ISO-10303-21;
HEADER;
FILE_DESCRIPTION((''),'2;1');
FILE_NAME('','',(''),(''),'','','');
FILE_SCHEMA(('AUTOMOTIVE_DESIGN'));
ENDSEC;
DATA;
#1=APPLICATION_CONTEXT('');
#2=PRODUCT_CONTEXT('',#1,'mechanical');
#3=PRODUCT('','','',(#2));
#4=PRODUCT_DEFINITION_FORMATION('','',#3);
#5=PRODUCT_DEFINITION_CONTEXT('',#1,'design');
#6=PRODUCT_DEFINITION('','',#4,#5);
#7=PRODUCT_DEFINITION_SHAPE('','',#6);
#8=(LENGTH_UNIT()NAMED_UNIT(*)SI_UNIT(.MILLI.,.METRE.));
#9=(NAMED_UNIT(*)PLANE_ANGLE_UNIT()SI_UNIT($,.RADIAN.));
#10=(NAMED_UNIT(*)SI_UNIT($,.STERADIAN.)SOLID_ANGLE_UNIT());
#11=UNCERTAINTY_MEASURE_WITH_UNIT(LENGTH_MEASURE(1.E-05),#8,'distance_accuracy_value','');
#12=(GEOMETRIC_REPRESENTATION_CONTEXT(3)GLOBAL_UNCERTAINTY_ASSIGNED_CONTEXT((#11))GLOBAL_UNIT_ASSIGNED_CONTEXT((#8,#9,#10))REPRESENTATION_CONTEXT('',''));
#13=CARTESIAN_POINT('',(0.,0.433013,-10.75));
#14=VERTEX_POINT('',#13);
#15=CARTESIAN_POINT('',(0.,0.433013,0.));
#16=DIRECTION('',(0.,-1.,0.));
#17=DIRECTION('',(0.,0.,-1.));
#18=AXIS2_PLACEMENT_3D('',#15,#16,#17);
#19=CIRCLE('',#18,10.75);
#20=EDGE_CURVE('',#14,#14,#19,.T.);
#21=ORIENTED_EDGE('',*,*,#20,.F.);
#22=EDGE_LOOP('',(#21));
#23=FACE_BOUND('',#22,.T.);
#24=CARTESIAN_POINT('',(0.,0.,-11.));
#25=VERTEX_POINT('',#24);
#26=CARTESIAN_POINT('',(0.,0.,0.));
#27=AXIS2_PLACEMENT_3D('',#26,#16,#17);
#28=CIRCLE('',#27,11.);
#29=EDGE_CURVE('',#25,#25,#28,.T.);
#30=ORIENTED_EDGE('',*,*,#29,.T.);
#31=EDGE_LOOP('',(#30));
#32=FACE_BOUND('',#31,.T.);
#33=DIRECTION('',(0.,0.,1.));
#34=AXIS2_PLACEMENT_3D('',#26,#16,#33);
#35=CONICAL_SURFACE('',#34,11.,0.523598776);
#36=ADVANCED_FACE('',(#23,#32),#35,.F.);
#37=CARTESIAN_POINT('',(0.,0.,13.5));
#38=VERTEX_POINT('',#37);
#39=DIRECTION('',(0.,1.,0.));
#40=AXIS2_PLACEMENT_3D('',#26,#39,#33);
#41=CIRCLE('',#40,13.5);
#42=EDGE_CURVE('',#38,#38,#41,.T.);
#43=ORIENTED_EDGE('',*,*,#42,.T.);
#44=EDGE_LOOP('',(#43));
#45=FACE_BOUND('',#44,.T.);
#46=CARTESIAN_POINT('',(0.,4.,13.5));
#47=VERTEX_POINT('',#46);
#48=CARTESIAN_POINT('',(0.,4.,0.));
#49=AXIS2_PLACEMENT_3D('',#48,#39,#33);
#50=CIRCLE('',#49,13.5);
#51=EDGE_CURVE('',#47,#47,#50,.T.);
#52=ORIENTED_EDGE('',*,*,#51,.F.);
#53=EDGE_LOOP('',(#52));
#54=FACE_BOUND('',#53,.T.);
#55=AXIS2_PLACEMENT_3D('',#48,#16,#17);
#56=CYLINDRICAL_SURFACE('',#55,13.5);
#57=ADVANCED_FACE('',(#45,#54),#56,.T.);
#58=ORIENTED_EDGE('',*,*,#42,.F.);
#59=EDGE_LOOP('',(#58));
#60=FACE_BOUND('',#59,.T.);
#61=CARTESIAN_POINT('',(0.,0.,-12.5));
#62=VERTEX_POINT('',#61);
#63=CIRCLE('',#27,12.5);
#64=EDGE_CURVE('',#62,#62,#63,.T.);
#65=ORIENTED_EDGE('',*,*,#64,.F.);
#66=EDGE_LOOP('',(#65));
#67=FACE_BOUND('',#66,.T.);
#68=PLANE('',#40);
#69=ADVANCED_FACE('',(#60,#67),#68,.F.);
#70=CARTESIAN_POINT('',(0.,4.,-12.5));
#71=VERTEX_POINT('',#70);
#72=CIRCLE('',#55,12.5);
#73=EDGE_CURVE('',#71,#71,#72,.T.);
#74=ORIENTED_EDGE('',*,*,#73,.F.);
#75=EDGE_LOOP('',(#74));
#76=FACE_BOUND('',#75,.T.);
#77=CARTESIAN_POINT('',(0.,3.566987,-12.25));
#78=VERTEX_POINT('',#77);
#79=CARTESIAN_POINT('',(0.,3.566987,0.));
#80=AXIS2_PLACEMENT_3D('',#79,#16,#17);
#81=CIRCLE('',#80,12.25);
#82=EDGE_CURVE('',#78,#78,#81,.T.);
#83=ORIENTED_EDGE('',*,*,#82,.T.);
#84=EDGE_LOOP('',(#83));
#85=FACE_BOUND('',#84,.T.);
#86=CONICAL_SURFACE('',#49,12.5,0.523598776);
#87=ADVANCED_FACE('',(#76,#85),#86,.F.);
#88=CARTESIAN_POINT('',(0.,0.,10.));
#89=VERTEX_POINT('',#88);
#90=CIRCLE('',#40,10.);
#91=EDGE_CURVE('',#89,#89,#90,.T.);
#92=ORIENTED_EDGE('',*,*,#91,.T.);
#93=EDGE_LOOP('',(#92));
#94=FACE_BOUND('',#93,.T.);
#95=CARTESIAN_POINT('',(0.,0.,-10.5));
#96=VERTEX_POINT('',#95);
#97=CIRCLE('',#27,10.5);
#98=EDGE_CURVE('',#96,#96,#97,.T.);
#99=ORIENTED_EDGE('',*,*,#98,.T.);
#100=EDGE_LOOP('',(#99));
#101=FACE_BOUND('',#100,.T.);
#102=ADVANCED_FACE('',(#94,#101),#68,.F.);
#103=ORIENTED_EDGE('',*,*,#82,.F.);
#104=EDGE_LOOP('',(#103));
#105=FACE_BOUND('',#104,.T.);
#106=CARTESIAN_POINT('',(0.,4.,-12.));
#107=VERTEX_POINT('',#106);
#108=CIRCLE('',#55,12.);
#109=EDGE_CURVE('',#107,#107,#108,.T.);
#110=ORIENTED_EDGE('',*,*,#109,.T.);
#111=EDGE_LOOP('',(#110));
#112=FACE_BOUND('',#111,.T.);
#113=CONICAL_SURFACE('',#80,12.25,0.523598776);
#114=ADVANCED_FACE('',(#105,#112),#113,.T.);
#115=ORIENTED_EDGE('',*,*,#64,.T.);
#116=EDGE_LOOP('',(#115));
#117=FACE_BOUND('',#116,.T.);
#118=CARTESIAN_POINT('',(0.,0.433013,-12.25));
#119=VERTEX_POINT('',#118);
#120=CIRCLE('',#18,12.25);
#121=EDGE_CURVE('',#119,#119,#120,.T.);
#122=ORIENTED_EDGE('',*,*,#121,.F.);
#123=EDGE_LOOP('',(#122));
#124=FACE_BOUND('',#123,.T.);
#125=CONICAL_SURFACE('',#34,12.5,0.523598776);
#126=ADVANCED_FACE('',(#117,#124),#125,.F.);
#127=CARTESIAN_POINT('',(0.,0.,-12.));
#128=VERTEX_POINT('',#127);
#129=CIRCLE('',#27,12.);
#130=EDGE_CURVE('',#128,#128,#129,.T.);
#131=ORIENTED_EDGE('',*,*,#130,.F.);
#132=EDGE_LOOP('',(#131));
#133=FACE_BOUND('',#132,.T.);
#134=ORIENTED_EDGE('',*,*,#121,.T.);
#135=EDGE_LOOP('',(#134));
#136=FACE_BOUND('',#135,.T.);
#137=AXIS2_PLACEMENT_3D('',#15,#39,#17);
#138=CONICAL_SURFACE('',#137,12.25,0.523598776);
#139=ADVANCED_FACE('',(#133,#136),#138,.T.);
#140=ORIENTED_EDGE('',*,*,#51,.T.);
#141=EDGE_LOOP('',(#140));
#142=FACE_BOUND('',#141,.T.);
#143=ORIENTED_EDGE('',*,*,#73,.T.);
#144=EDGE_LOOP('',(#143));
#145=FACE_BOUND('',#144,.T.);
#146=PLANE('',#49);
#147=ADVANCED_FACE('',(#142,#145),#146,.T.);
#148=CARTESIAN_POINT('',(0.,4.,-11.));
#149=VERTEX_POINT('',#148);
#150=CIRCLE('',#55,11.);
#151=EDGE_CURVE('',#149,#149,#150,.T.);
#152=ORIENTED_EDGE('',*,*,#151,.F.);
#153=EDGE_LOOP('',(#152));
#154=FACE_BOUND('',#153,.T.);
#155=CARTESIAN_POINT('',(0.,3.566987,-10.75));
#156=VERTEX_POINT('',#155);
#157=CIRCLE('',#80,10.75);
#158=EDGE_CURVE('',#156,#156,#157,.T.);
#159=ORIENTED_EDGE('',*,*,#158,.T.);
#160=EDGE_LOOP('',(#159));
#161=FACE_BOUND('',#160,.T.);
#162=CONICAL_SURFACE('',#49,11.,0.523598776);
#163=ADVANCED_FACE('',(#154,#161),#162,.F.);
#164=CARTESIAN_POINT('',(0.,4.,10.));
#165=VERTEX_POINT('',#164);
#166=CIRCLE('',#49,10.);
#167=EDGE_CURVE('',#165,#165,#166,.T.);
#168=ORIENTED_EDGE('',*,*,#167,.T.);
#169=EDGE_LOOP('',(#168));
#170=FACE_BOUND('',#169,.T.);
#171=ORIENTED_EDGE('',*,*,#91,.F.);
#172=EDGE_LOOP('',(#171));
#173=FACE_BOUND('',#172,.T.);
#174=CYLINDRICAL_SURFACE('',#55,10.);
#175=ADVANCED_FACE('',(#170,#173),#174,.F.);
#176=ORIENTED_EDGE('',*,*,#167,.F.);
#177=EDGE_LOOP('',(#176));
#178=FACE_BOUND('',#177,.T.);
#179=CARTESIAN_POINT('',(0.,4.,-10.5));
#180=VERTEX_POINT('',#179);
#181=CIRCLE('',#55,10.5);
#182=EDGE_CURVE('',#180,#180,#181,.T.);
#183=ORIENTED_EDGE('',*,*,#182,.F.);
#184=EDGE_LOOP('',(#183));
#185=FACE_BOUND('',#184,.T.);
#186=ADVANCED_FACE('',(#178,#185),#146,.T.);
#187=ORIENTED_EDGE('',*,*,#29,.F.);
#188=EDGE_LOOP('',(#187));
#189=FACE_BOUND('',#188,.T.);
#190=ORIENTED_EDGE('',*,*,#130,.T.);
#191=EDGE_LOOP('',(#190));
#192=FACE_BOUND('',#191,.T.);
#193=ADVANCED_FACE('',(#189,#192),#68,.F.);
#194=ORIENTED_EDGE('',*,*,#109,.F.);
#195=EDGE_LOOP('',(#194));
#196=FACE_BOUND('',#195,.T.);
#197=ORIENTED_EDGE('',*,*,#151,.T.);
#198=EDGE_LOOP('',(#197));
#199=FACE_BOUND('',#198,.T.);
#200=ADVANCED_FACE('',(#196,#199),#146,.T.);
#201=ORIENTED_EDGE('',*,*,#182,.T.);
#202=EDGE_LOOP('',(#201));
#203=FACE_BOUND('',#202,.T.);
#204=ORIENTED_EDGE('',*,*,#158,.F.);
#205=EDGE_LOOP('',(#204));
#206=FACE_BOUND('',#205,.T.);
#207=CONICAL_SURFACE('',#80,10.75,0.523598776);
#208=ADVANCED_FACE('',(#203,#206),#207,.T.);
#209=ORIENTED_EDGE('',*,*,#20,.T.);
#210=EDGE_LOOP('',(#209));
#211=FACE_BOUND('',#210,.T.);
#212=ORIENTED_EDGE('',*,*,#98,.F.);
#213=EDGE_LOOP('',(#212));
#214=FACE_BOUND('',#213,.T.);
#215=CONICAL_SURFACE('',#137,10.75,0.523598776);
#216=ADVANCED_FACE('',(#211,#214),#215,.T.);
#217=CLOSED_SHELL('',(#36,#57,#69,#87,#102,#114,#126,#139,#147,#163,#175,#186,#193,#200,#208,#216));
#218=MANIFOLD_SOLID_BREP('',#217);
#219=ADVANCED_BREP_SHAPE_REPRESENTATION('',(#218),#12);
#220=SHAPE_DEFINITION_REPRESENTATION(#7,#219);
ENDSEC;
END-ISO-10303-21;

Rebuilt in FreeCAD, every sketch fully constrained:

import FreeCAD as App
import Part
import Sketcher
from FreeCAD import Vector
Q = App.Units.Quantity


def add_polygon(sketch, points):
    """Adds a closed chain of lines whose ends are joined by coincident constraints."""
    first, n = sketch.GeometryCount, len(points)
    for a, b in zip(points, points[1:] + points[:1]):
        sketch.addGeometry(Part.LineSegment(App.Vector(*a, 0), App.Vector(*b, 0)), False)
    for i in range(n):
        sketch.addConstraint(Sketcher.Constraint("Coincident", first + i, 2, first + (i + 1) % n, 1))

doc = App.newDocument("Part")
params = doc.addObject("Spreadsheet::Sheet", "Params")
for row, (alias, value) in enumerate([
    ("sketch1_diameter", "27 mm"),
    ("sketch1_diameter2", "20 mm"),
    ("pad1_length", "4 mm"),
    ("sketch2_width", "0.5 mm"),
    ("groove_angle", "360 deg"),
], start=1):
    params.set(f"A{row}", alias)
    params.set(f"B{row}", "=" + value)
    params.setAlias(f"B{row}", alias)

body = doc.addObject("PartDesign::Body", "Body")

# Sketch on XZ plane
sketch1 = body.newObject("Sketcher::SketchObject", "Sketch")
sketch1.AttachmentSupport = (doc.getObject("XZ_Plane"), [""])
sketch1.MapMode = "FlatFace"
sketch1.addGeometry([
    Part.Circle(Vector(0, 0, 0), Vector(0, 0, 1), 14),
    Part.Circle(Vector(0, 0, 0), Vector(0, 0, 1), 10),
], False)
sketch1.addConstraint([
    Sketcher.Constraint("Coincident", 0, 3, -1, 1),
    Sketcher.Constraint("Coincident", 1, 3, -1, 1),
    Sketcher.Constraint("Diameter", 0, Q("27 mm")),
    Sketcher.Constraint("Diameter", 1, Q("20 mm")),
])
sketch1.setExpression("Constraints[2]", "Params.sketch1_diameter")
sketch1.setExpression("Constraints[3]", "Params.sketch1_diameter2")
pad1 = body.newObject("PartDesign::Pad", "Pad")
pad1.Profile = sketch1
pad1.setExpression("Length", "Params.pad1_length")
pad1.Reversed = True

# Sketch on XY plane
sketch2 = body.newObject("Sketcher::SketchObject", "Sketch001")
sketch2.AttachmentSupport = (doc.getObject("XY_Plane"), [""])
sketch2.MapMode = "FlatFace"
add_polygon(sketch2, [(-12.2, 3.6), (-12, 4), (-12.5, 4)])  # lines 0-2
add_polygon(sketch2, [(-10.8, 3.6), (-10.5, 4), (-11, 4)])  # lines 3-5
sketch2.addConstraint([
    Sketcher.Constraint("Horizontal", 1),
    Sketcher.Constraint("Horizontal", 4),
    Sketcher.Constraint("Parallel", 0, 3),
    Sketcher.Constraint("Parallel", 2, 5),
    Sketcher.Constraint("Horizontal", 1, 2, 3, 2),
    Sketcher.Constraint("Horizontal", 2, 2, 5, 2),
    Sketcher.Constraint("Equal", 0, 2),
    Sketcher.Constraint("Angle", 0, Q("60 deg")),
    Sketcher.Constraint("DistanceX", 1, 2, 1, 1, Q("0.5 mm")),
    Sketcher.Constraint("DistanceX", 0, 2, -1, 1, Q("12 mm")),
    Sketcher.Constraint("DistanceY", -1, 1, 0, 2, Q("4 mm")),
    Sketcher.Constraint("DistanceX", 4, 2, -1, 1, Q("11 mm")),
])
sketch2.setExpression("Constraints[14]", "Params.sketch2_width")
groove = body.newObject("PartDesign::Groove", "Groove")
groove.Profile = sketch2
groove.ReferenceAxis = (sketch2, ["V_Axis"])
groove.setExpression("Angle", "Params.groove_angle")
doc.recompute()

datumplane = body.newObject("PartDesign::Plane", "DatumPlane")
datumplane.AttachmentSupport = (doc.getObject("XZ_Plane"), [""])
datumplane.MapMode = "FlatFace"
datumplane.AttachmentOffset = App.Placement(Vector(0, 0, -2), App.Rotation())
mirrored = body.newObject("PartDesign::Mirrored", "Mirrored")
mirrored.Originals = [groove]
mirrored.MirrorPlane = (datumplane, [""])
body.Tip = mirrored

doc.recompute()
